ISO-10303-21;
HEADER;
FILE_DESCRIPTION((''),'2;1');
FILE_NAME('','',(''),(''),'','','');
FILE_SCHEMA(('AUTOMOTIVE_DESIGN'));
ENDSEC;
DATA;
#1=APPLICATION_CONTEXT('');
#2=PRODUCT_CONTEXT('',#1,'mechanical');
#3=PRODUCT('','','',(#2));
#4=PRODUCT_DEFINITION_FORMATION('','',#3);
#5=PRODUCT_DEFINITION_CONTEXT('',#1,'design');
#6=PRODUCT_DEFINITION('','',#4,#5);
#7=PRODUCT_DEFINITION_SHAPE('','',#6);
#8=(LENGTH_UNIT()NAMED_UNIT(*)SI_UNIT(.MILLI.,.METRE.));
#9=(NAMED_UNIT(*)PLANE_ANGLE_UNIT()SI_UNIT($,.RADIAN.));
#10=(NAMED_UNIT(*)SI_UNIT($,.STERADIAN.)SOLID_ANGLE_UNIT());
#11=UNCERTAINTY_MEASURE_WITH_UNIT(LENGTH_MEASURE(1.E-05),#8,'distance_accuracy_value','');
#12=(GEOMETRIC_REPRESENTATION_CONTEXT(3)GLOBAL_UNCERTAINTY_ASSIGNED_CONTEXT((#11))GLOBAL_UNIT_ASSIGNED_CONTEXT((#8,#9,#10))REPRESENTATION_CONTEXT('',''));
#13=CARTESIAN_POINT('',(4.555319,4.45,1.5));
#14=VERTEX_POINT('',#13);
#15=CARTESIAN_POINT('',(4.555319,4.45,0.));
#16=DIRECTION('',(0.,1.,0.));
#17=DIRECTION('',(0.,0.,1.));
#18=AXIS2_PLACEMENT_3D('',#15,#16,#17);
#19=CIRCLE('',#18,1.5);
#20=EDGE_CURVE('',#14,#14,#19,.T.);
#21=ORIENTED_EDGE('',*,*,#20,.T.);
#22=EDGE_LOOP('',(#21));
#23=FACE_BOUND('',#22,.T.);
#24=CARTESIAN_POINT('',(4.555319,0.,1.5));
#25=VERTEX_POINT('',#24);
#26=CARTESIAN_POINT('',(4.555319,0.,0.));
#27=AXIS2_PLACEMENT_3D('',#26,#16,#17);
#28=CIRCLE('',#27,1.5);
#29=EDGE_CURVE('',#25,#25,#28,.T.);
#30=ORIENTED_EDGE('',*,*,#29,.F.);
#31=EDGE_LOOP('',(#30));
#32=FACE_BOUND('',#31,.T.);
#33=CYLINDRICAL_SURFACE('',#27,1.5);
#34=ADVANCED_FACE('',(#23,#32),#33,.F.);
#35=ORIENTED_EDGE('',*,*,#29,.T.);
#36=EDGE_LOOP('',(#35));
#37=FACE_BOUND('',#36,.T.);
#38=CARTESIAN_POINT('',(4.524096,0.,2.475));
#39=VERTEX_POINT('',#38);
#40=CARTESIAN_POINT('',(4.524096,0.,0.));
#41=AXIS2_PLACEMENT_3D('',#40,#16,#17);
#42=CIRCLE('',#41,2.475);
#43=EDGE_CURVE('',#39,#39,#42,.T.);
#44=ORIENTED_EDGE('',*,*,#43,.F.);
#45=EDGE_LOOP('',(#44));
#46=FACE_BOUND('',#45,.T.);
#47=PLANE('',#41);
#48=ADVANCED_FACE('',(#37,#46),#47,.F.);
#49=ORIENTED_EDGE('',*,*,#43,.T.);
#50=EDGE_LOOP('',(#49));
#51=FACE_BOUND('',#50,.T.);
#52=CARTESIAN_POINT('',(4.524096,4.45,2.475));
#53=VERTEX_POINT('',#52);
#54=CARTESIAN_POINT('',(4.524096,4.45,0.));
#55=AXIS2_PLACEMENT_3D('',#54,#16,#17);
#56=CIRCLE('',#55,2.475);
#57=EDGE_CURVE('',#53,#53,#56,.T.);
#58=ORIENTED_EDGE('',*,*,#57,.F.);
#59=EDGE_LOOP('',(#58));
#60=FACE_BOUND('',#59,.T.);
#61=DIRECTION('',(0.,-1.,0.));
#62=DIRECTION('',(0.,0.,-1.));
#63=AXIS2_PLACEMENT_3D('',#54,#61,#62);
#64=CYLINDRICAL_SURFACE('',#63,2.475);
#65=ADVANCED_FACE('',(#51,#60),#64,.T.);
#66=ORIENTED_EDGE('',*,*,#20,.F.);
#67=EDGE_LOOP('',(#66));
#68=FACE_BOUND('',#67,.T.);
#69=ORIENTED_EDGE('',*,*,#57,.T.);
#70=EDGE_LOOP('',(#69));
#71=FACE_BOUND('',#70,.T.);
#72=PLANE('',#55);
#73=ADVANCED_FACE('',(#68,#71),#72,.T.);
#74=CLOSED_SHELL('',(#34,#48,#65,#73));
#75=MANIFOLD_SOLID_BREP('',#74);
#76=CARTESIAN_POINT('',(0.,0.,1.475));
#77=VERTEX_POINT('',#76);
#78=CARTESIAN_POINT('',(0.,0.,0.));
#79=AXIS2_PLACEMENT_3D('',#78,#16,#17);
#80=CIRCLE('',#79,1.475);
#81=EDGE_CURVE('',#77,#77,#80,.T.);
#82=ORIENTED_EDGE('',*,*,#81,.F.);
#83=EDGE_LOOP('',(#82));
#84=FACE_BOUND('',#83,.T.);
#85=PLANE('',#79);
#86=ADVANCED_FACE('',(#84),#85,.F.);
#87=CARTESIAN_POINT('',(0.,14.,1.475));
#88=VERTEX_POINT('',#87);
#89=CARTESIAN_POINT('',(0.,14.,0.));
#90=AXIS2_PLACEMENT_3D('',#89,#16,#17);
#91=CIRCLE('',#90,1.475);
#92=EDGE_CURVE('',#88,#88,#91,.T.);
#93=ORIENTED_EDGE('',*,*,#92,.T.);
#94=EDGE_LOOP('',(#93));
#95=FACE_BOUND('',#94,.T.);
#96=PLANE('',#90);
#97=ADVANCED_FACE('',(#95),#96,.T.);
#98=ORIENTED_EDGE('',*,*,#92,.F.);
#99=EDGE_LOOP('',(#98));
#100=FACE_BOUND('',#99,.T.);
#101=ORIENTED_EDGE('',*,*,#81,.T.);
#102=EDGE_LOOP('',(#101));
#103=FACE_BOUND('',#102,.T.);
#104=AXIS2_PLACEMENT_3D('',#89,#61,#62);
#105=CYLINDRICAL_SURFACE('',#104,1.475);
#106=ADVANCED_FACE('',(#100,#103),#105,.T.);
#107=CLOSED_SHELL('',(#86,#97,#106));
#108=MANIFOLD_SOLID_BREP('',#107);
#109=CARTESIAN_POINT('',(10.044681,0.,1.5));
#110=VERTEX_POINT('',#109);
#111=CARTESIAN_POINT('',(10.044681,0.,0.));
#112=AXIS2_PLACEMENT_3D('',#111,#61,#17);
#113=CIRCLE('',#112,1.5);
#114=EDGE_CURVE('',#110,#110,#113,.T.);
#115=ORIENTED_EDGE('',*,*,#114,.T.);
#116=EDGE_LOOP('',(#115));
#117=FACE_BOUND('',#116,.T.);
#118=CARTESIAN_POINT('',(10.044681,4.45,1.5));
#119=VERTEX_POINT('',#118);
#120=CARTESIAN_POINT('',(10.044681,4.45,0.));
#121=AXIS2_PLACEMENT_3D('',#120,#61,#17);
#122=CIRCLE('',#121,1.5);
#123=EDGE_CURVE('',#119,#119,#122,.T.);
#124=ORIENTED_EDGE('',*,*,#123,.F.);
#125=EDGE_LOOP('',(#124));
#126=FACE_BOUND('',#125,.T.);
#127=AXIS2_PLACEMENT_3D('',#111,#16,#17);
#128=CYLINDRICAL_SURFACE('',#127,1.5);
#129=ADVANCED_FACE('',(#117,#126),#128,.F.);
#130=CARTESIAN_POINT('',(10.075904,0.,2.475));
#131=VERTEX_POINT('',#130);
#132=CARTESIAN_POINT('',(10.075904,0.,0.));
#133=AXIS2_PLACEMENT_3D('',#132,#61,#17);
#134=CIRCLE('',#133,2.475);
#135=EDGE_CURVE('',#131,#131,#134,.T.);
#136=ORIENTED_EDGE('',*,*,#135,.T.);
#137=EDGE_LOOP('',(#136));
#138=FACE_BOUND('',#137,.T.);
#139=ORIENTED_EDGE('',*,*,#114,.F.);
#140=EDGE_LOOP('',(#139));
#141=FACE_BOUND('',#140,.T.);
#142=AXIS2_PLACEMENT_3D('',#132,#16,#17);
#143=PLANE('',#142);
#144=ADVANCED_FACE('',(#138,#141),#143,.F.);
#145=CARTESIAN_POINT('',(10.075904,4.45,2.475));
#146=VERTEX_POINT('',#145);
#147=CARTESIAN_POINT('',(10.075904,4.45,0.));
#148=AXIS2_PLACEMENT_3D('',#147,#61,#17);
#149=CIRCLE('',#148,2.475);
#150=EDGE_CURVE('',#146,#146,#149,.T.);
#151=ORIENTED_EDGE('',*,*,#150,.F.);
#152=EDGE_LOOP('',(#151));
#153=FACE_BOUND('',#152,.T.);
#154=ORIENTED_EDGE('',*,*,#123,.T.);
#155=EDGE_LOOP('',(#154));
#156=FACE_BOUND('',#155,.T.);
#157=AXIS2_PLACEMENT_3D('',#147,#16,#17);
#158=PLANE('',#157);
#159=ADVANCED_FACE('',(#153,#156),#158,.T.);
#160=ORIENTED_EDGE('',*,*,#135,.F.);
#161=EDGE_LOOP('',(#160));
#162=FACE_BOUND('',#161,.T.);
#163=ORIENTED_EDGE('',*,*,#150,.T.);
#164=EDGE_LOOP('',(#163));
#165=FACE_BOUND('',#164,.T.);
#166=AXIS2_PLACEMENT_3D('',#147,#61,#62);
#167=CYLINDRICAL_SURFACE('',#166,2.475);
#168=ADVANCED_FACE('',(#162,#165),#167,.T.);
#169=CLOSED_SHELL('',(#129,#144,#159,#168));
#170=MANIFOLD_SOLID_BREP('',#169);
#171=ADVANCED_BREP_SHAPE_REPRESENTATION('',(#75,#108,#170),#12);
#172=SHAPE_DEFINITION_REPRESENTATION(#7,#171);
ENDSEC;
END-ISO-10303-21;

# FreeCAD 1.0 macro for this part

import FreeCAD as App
import Part
import Sketcher
from FreeCAD import Vector
Q = App.Units.Quantity

doc = App.newDocument("Part")
body = doc.addObject("PartDesign::Body", "Body")

# Sketch on XZ plane
sketch1 = doc.addObject("Sketcher::SketchObject", "Sketch")
body.addObject(sketch1)
sketch1.AttachmentSupport = (doc.XZ_Plane, [""])
sketch1.MapMode = "FlatFace"
sketch1.addGeometry(Part.Circle(Vector(0, 0, 0), Vector(0, 0, 1), 1.5), False)
sketch1.addConstraint([
    Sketcher.Constraint("Coincident", 0, 3, -1, 1),
    Sketcher.Constraint("Diameter", 0, Q("2.95 mm")),
])
pad1 = doc.addObject("PartDesign::Pad", "Pad")
body.addObject(pad1)
pad1.Profile = sketch1
pad1.Length = 14
pad1.Reversed = True
body2 = doc.addObject("PartDesign::Body", "Body001")

# Sketch on XZ plane
sketch2 = doc.addObject("Sketcher::SketchObject", "Sketch001")
body2.addObject(sketch2)
sketch2.AttachmentSupport = (doc.getObject("XZ_Plane001"), [""])
sketch2.MapMode = "FlatFace"
sketch2.addGeometry(Part.Circle(Vector(4.5, 0, 0), Vector(0, 0, 1), 2.5), False)
sketch2.addConstraint([
    Sketcher.Constraint("PointOnObject", 0, 3, -1),
    Sketcher.Constraint("Diameter", 0, Q("4.95 mm")),
    Sketcher.Constraint("DistanceX", -1, 1, 0, 3, Q("4.524096 mm")),
])
pad2 = doc.addObject("PartDesign::Pad", "Pad001")
body2.addObject(pad2)
pad2.Profile = sketch2
pad2.Length = 4.45
pad2.Reversed = True

# Sketch on XZ plane
sketch3 = doc.addObject("Sketcher::SketchObject", "Sketch002")
body2.addObject(sketch3)
sketch3.AttachmentSupport = (doc.getObject("XZ_Plane001"), [""])
sketch3.MapMode = "FlatFace"
sketch3.AttachmentOffset = App.Placement(Vector(0, 0, -4.45), App.Rotation())
sketch3.addGeometry(Part.Circle(Vector(4.6, 0, 0), Vector(0, 0, 1), 1.5), False)
sketch3.addConstraint([
    Sketcher.Constraint("PointOnObject", 0, 3, -1),
    Sketcher.Constraint("Diameter", 0, Q("3 mm")),
    Sketcher.Constraint("DistanceX", -1, 1, 0, 3, Q("4.555319 mm")),
])
pocket1 = doc.addObject("PartDesign::Pocket", "Pocket")
body2.addObject(pocket1)
pocket1.Profile = sketch3
pocket1.Type = "ThroughAll"
pocket1.Reversed = True
body3 = doc.addObject("PartDesign::Body", "Body002")
doc.recompute()

mirroring = doc.addObject("Part::Mirroring", "Mirroring")
mirroring.Source = body2
mirroring.Base = Vector(7.3, 0, 0)
mirroring.Normal = Vector(1, 0, 0)
body3.BaseFeature = mirroring
doc.recompute()
mirroring.Visibility = False

doc.recompute()
